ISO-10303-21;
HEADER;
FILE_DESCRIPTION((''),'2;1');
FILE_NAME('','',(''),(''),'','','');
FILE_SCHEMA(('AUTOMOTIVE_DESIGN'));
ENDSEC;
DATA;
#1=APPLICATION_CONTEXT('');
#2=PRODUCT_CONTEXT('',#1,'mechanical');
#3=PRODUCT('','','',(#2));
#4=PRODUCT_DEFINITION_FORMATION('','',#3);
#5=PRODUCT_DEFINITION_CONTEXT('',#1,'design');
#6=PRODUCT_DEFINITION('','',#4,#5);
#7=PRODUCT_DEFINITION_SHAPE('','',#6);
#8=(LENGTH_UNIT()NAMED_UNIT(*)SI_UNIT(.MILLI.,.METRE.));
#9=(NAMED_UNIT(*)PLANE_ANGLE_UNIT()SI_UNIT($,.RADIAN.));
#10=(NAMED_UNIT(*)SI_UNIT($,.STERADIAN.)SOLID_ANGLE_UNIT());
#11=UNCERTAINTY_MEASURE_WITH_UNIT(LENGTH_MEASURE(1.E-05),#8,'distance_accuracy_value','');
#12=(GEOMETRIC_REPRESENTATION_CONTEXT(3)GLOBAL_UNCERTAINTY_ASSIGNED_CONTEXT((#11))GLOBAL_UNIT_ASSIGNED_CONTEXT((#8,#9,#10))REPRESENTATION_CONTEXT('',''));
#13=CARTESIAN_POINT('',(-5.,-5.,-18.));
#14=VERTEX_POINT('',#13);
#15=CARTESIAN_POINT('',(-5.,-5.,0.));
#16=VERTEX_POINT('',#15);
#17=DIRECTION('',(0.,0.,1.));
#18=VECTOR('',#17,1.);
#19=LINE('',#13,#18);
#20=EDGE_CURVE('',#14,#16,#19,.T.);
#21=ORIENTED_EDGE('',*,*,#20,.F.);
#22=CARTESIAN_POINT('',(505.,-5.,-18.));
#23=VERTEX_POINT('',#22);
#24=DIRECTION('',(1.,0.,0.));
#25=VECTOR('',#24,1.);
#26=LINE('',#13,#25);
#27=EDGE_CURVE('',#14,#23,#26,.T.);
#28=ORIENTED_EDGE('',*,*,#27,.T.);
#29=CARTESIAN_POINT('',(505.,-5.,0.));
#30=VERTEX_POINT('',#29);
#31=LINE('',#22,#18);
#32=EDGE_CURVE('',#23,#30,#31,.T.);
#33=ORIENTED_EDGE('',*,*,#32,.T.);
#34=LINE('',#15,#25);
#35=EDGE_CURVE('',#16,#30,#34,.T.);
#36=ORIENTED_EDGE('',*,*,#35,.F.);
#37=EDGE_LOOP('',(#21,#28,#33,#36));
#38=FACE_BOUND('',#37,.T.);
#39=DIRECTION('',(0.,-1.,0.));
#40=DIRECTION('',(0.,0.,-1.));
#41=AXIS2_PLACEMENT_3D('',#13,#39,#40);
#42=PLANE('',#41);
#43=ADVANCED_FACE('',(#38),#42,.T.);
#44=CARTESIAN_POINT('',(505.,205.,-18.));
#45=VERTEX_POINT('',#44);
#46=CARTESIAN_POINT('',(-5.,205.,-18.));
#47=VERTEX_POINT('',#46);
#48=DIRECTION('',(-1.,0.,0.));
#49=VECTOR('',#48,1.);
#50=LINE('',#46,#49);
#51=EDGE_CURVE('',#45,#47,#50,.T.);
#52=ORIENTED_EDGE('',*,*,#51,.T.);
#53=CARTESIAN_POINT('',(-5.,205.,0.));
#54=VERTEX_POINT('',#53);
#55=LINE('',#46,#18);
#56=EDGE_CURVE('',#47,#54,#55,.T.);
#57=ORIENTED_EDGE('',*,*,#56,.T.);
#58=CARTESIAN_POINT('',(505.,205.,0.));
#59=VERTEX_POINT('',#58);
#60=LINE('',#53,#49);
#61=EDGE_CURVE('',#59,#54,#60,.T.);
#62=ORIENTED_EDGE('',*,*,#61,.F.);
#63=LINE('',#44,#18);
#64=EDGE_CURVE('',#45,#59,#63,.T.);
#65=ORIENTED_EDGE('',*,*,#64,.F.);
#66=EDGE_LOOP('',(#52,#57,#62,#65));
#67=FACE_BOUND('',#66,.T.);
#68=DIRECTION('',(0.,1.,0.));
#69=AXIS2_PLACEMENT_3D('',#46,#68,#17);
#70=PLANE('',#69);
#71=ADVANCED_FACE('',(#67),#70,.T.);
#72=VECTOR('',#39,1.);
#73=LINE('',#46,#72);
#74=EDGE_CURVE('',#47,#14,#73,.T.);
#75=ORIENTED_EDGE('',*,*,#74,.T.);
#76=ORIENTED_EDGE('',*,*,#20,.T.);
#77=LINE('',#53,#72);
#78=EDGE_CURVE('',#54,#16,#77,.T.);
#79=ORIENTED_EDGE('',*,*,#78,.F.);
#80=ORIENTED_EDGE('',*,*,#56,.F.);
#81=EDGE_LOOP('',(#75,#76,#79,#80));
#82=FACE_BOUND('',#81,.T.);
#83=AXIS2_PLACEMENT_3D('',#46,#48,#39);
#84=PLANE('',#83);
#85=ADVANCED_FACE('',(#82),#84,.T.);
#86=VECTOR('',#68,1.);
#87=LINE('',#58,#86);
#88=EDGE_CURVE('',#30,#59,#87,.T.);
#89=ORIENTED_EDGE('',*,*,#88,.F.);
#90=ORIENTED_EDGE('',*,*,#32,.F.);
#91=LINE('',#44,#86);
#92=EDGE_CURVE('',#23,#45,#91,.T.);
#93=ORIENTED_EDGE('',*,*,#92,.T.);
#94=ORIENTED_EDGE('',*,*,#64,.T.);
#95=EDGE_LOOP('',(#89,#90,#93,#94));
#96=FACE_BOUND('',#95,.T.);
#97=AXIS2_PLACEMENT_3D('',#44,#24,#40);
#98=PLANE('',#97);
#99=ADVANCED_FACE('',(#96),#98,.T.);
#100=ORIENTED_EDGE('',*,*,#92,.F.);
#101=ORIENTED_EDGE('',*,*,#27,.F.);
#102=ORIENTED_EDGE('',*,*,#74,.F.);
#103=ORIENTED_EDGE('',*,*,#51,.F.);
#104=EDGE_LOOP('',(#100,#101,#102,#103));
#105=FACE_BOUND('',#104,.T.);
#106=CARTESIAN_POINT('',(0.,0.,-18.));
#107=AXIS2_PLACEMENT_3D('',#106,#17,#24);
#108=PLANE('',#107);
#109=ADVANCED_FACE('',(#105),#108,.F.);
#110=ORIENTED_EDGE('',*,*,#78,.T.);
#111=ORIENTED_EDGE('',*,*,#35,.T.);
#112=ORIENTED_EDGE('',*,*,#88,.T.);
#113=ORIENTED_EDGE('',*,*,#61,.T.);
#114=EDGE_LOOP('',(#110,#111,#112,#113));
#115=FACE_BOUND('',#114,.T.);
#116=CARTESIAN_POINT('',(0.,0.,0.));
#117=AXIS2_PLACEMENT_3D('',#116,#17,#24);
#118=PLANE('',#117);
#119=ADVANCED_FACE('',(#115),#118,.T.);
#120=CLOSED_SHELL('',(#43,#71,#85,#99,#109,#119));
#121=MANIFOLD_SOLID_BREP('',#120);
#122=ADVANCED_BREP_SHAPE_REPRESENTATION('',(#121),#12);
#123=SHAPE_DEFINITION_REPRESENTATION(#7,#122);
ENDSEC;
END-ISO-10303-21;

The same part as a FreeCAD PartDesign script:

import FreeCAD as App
import Part
import Sketcher


def add_polygon(sketch, points):
    """Adds a closed chain of lines whose ends are joined by coincident constraints."""
    first, n = sketch.GeometryCount, len(points)
    for a, b in zip(points, points[1:] + points[:1]):
        sketch.addGeometry(Part.LineSegment(App.Vector(*a, 0), App.Vector(*b, 0)), False)
    for i in range(n):
        sketch.addConstraint(Sketcher.Constraint("Coincident", first + i, 2, first + (i + 1) % n, 1))

doc = App.newDocument("Part")
body = doc.addObject("PartDesign::Body", "Body")

# Sketch on XY plane
sketch1 = doc.addObject("Sketcher::SketchObject", "Sketch")
body.addObject(sketch1)
sketch1.AttachmentSupport = (doc.XY_Plane, [""])
sketch1.MapMode = "FlatFace"
add_polygon(sketch1, [(-5, 205), (-5, -5), (505, -5), (505, 205)])  # lines 0-3
sketch1.addConstraint([
    Sketcher.Constraint("Vertical", 0),
    Sketcher.Constraint("Horizontal", 1),
    Sketcher.Constraint("Vertical", 2),
    Sketcher.Constraint("Horizontal", 3),
    Sketcher.Constraint("DistanceX", 1, 1, 1, 2, 510.0),
    Sketcher.Constraint("DistanceY", 0, 2, 0, 1, 210.0),
    Sketcher.Constraint("DistanceX", 0, 2, -1, 1, 5.0),
    Sketcher.Constraint("DistanceY", 0, 2, -1, 1, 5.0),
])
pad1 = doc.addObject("PartDesign::Pad", "Pad")
body.addObject(pad1)
pad1.Profile = sketch1
pad1.Length = 18
pad1.Reversed = True

doc.recompute()
